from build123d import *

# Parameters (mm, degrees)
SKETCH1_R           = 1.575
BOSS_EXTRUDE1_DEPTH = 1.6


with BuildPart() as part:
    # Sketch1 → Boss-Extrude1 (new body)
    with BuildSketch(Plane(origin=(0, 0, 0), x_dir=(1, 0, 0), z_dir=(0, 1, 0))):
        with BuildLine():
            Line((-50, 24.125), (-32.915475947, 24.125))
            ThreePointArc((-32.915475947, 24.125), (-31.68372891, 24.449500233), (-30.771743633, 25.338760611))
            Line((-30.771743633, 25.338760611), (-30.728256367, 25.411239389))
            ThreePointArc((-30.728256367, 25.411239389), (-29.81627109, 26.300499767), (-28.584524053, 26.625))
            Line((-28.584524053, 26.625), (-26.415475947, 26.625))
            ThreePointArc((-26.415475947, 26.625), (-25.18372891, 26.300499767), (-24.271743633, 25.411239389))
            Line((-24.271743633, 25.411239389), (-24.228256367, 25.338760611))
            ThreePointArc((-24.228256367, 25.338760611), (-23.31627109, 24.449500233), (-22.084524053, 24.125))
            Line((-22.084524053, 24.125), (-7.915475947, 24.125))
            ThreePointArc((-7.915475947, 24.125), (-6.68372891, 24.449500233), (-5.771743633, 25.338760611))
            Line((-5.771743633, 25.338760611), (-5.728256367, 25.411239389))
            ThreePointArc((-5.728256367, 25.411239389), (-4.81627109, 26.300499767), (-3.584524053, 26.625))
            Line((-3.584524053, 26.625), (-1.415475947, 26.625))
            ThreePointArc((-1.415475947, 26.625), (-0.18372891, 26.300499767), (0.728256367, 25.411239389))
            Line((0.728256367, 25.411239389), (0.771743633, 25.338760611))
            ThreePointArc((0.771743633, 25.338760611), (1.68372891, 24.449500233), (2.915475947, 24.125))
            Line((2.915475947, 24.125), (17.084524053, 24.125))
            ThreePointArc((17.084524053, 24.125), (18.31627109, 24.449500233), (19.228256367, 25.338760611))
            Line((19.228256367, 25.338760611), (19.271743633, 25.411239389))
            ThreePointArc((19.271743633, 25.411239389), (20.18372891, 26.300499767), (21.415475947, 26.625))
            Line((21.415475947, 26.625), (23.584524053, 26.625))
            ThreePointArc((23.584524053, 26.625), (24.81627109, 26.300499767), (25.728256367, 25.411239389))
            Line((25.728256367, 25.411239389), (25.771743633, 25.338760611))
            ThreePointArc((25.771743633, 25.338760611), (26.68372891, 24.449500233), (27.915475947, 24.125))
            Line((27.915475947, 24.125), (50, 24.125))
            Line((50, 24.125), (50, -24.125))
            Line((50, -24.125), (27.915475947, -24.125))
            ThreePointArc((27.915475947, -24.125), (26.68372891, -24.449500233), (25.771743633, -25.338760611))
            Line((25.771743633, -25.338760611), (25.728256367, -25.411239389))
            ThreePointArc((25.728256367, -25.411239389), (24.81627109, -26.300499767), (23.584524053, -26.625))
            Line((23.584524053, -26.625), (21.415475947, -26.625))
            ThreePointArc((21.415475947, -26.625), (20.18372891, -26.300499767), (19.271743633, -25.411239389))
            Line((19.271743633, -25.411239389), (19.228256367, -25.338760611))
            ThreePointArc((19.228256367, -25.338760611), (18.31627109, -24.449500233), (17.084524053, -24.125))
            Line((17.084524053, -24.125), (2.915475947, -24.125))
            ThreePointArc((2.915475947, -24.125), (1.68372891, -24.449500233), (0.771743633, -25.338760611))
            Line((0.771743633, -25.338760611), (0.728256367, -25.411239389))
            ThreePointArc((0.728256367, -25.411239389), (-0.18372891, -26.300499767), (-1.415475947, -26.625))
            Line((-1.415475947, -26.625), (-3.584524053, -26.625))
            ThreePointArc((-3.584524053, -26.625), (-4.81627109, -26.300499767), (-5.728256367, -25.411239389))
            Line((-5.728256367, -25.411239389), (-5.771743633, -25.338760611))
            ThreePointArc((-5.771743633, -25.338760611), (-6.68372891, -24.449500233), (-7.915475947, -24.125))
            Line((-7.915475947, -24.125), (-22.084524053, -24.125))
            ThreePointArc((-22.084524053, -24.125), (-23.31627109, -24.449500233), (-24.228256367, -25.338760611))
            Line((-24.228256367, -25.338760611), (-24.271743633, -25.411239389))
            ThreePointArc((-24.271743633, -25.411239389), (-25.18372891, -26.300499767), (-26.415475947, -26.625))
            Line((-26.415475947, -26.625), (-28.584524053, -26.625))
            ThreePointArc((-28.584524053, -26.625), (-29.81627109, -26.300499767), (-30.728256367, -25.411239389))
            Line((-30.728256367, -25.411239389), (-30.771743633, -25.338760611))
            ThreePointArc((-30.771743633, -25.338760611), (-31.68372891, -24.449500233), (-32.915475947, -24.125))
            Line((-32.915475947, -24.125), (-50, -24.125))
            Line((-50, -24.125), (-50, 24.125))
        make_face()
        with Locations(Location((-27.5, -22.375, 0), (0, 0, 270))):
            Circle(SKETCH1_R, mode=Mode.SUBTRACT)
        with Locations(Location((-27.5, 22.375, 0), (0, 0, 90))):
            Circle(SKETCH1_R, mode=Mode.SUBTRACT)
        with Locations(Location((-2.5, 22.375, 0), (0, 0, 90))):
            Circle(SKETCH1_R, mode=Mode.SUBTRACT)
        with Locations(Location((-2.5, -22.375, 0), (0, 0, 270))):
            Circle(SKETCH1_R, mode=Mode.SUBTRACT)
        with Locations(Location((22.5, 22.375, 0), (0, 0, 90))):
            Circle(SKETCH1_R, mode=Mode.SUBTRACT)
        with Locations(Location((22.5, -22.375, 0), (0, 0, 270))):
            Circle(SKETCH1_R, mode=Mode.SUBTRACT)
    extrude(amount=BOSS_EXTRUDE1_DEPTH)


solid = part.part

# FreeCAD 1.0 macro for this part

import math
import FreeCAD as App
import Part
import Sketcher

V = App.Vector

doc = App.newDocument("Part")
body = doc.addObject("PartDesign::Body", "Body")

# Sketch on XZ plane
sketch1 = body.newObject("Sketcher::SketchObject", "Sketch")
sketch1.AttachmentSupport = (doc.getObject("XZ_Plane"), [""])
sketch1.MapMode = "FlatFace"
sketch1.addGeometry([
    Part.LineSegment(V(-32.92, -24.12, 0), V(-50, -24.12, 0)),  # 0
    Part.LineSegment(V(-50, -24.12, 0), V(-50, 24.12, 0)),  # 1
    Part.LineSegment(V(-50, 24.12, 0), V(-32.92, 24.12, 0)),  # 2
    Part.ArcOfCircle(Part.Circle(V(-32.92, 26.63, 0), V(0, 0, 1), 2.5), math.radians(-90), math.radians(-31)),  # 3
    Part.LineSegment(V(-30.77, 25.34, 0), V(-30.73, 25.41, 0)),  # 4
    Part.ArcOfCircle(Part.Circle(V(-28.58, 24.12, 0), V(0, 0, 1), 2.5), math.radians(90), math.radians(149)),  # 5
    Part.LineSegment(V(-28.58, 26.62, 0), V(-26.42, 26.62, 0)),  # 6
    Part.ArcOfCircle(Part.Circle(V(-26.42, 24.12, 0), V(0, 0, 1), 2.5), math.radians(31), math.radians(90)),  # 7
    Part.LineSegment(V(-24.27, 25.41, 0), V(-24.23, 25.34, 0)),  # 8
    Part.ArcOfCircle(Part.Circle(V(-22.08, 26.63, 0), V(0, 0, 1), 2.5), math.radians(-149), math.radians(-90)),  # 9
    Part.LineSegment(V(-22.08, 24.12, 0), V(-7.92, 24.12, 0)),  # 10
    Part.ArcOfCircle(Part.Circle(V(-7.92, 26.63, 0), V(0, 0, 1), 2.5), math.radians(-90), math.radians(-31)),  # 11
    Part.LineSegment(V(-5.77, 25.34, 0), V(-5.73, 25.41, 0)),  # 12
    Part.ArcOfCircle(Part.Circle(V(-3.58, 24.12, 0), V(0, 0, 1), 2.5), math.radians(90), math.radians(149)),  # 13
    Part.LineSegment(V(-3.58, 26.62, 0), V(-1.42, 26.62, 0)),  # 14
    Part.ArcOfCircle(Part.Circle(V(-1.42, 24.12, 0), V(0, 0, 1), 2.5), math.radians(31), math.radians(90)),  # 15
    Part.LineSegment(V(0.73, 25.41, 0), V(0.77, 25.34, 0)),  # 16
    Part.ArcOfCircle(Part.Circle(V(2.92, 26.63, 0), V(0, 0, 1), 2.5), math.radians(-149), math.radians(-90)),  # 17
    Part.LineSegment(V(2.92, 24.12, 0), V(17.08, 24.12, 0)),  # 18
    Part.ArcOfCircle(Part.Circle(V(17.08, 26.63, 0), V(0, 0, 1), 2.5), math.radians(-90), math.radians(-31)),  # 19
    Part.LineSegment(V(19.23, 25.34, 0), V(19.27, 25.41, 0)),  # 20
    Part.ArcOfCircle(Part.Circle(V(21.42, 24.12, 0), V(0, 0, 1), 2.5), math.radians(90), math.radians(149)),  # 21
    Part.LineSegment(V(21.42, 26.62, 0), V(23.58, 26.62, 0)),  # 22
    Part.ArcOfCircle(Part.Circle(V(23.58, 24.12, 0), V(0, 0, 1), 2.5), math.radians(31), math.radians(90)),  # 23
    Part.LineSegment(V(25.73, 25.41, 0), V(25.77, 25.34, 0)),  # 24
    Part.ArcOfCircle(Part.Circle(V(27.92, 26.63, 0), V(0, 0, 1), 2.5), math.radians(-149), math.radians(-90)),  # 25
    Part.LineSegment(V(27.92, 24.12, 0), V(50, 24.12, 0)),  # 26
    Part.LineSegment(V(50, 24.12, 0), V(50, -24.12, 0)),  # 27
    Part.LineSegment(V(50, -24.12, 0), V(27.92, -24.12, 0)),  # 28
    Part.ArcOfCircle(Part.Circle(V(27.92, -26.63, 0), V(0, 0, 1), 2.5), math.radians(90), math.radians(149)),  # 29
    Part.LineSegment(V(25.77, -25.34, 0), V(25.73, -25.41, 0)),  # 30
    Part.ArcOfCircle(Part.Circle(V(23.58, -24.12, 0), V(0, 0, 1), 2.5), math.radians(-90), math.radians(-31)),  # 31
    Part.LineSegment(V(23.58, -26.62, 0), V(21.42, -26.62, 0)),  # 32
    Part.ArcOfCircle(Part.Circle(V(21.42, -24.12, 0), V(0, 0, 1), 2.5), math.radians(-149), math.radians(-90)),  # 33
    Part.LineSegment(V(19.27, -25.41, 0), V(19.23, -25.34, 0)),  # 34
    Part.ArcOfCircle(Part.Circle(V(17.08, -26.63, 0), V(0, 0, 1), 2.5), math.radians(31), math.radians(90)),  # 35
    Part.LineSegment(V(17.08, -24.12, 0), V(2.92, -24.12, 0)),  # 36
    Part.ArcOfCircle(Part.Circle(V(2.92, -26.63, 0), V(0, 0, 1), 2.5), math.radians(90), math.radians(149)),  # 37
    Part.LineSegment(V(0.77, -25.34, 0), V(0.73, -25.41, 0)),  # 38
    Part.ArcOfCircle(Part.Circle(V(-1.42, -24.12, 0), V(0, 0, 1), 2.5), math.radians(-90), math.radians(-31)),  # 39
    Part.LineSegment(V(-1.42, -26.62, 0), V(-3.58, -26.62, 0)),  # 40
    Part.ArcOfCircle(Part.Circle(V(-3.58, -24.12, 0), V(0, 0, 1), 2.5), math.radians(-149), math.radians(-90)),  # 41
    Part.LineSegment(V(-5.73, -25.41, 0), V(-5.77, -25.34, 0)),  # 42
    Part.ArcOfCircle(Part.Circle(V(-7.92, -26.63, 0), V(0, 0, 1), 2.5), math.radians(31), math.radians(90)),  # 43
    Part.LineSegment(V(-7.92, -24.12, 0), V(-22.08, -24.12, 0)),  # 44
    Part.ArcOfCircle(Part.Circle(V(-22.08, -26.63, 0), V(0, 0, 1), 2.5), math.radians(90), math.radians(149)),  # 45
    Part.LineSegment(V(-24.23, -25.34, 0), V(-24.27, -25.41, 0)),  # 46
    Part.ArcOfCircle(Part.Circle(V(-26.42, -24.12, 0), V(0, 0, 1), 2.5), math.radians(-90), math.radians(-31)),  # 47
    Part.LineSegment(V(-26.42, -26.62, 0), V(-28.58, -26.62, 0)),  # 48
    Part.ArcOfCircle(Part.Circle(V(-28.58, -24.12, 0), V(0, 0, 1), 2.5), math.radians(-149), math.radians(-90)),  # 49
    Part.LineSegment(V(-30.73, -25.41, 0), V(-30.77, -25.34, 0)),  # 50
    Part.ArcOfCircle(Part.Circle(V(-32.92, -26.63, 0), V(0, 0, 1), 2.5), math.radians(31), math.radians(90)),  # 51
    Part.Circle(V(22.5, 22.38, 0), V(0, 0, 1), 1.57),  # 52
    Part.Circle(V(-2.5, 22.38, 0), V(0, 0, 1), 1.57),  # 53
    Part.Circle(V(-27.5, 22.38, 0), V(0, 0, 1), 1.57),  # 54
    Part.Circle(V(22.5, -22.38, 0), V(0, 0, 1), 1.57),  # 55
    Part.Circle(V(-2.5, -22.38, 0), V(0, 0, 1), 1.57),  # 56
    Part.Circle(V(-27.5, -22.38, 0), V(0, 0, 1), 1.57),  # 57
], False)
sketch1.addConstraint([
    Sketcher.Constraint("Coincident", 0, 2, 1, 1),
    Sketcher.Constraint("Coincident", 1, 2, 2, 1),
    Sketcher.Constraint("Tangent", 2, 2, 3, 1),
    Sketcher.Constraint("Tangent", 3, 2, 4, 1),
    Sketcher.Constraint("Tangent", 4, 2, 5, 2),
    Sketcher.Constraint("Tangent", 5, 1, 6, 1),
    Sketcher.Constraint("Tangent", 6, 2, 7, 2),
    Sketcher.Constraint("Tangent", 7, 1, 8, 1),
    Sketcher.Constraint("Tangent", 8, 2, 9, 1),
    Sketcher.Constraint("Tangent", 9, 2, 10, 1),
    Sketcher.Constraint("Tangent", 10, 2, 11, 1),
    Sketcher.Constraint("Tangent", 11, 2, 12, 1),
    Sketcher.Constraint("Tangent", 12, 2, 13, 2),
    Sketcher.Constraint("Tangent", 13, 1, 14, 1),
    Sketcher.Constraint("Tangent", 14, 2, 15, 2),
    Sketcher.Constraint("Tangent", 15, 1, 16, 1),
    Sketcher.Constraint("Tangent", 16, 2, 17, 1),
    Sketcher.Constraint("Tangent", 17, 2, 18, 1),
    Sketcher.Constraint("Tangent", 18, 2, 19, 1),
    Sketcher.Constraint("Tangent", 19, 2, 20, 1),
    Sketcher.Constraint("Tangent", 20, 2, 21, 2),
    Sketcher.Constraint("Tangent", 21, 1, 22, 1),
    Sketcher.Constraint("Tangent", 22, 2, 23, 2),
    Sketcher.Constraint("Tangent", 23, 1, 24, 1),
    Sketcher.Constraint("Tangent", 24, 2, 25, 1),
    Sketcher.Constraint("Tangent", 25, 2, 26, 1),
    Sketcher.Constraint("Coincident", 26, 2, 27, 1),
    Sketcher.Constraint("Coincident", 27, 2, 28, 1),
    Sketcher.Constraint("Tangent", 28, 2, 29, 1),
    Sketcher.Constraint("Tangent", 29, 2, 30, 1),
    Sketcher.Constraint("Tangent", 30, 2, 31, 2),
    Sketcher.Constraint("Tangent", 31, 1, 32, 1),
    Sketcher.Constraint("Tangent", 32, 2, 33, 2),
    Sketcher.Constraint("Tangent", 33, 1, 34, 1),
    Sketcher.Constraint("Tangent", 34, 2, 35, 1),
    Sketcher.Constraint("Tangent", 35, 2, 36, 1),
    Sketcher.Constraint("Tangent", 36, 2, 37, 1),
    Sketcher.Constraint("Tangent", 37, 2, 38, 1),
    Sketcher.Constraint("Tangent", 38, 2, 39, 2),
    Sketcher.Constraint("Tangent", 39, 1, 40, 1),
    Sketcher.Constraint("Tangent", 40, 2, 41, 2),
    Sketcher.Constraint("Tangent", 41, 1, 42, 1),
    Sketcher.Constraint("Tangent", 42, 2, 43, 1),
    Sketcher.Constraint("Tangent", 43, 2, 44, 1),
    Sketcher.Constraint("Tangent", 44, 2, 45, 1),
    Sketcher.Constraint("Tangent", 45, 2, 46, 1),
    Sketcher.Constraint("Tangent", 46, 2, 47, 2),
    Sketcher.Constraint("Tangent", 47, 1, 48, 1),
    Sketcher.Constraint("Tangent", 48, 2, 49, 2),
    Sketcher.Constraint("Tangent", 49, 1, 50, 1),
    Sketcher.Constraint("Tangent", 50, 2, 51, 1),
    Sketcher.Constraint("Tangent", 51, 2, 0, 1),
    Sketcher.Constraint("Horizontal", 0),
    Sketcher.Constraint("Vertical", 1),
    Sketcher.Constraint("Horizontal", 2),
    Sketcher.Constraint("Horizontal", 6),
    Sketcher.Constraint("Horizontal", 10),
    Sketcher.Constraint("Horizontal", 14),
    Sketcher.Constraint("Horizontal", 18),
    Sketcher.Constraint("Horizontal", 22),
    Sketcher.Constraint("Horizontal", 26),
    Sketcher.Constraint("Vertical", 27),
    Sketcher.Constraint("Horizontal", 28),
    Sketcher.Constraint("Horizontal", 32),
    Sketcher.Constraint("Horizontal", 36),
    Sketcher.Constraint("Horizontal", 40),
    Sketcher.Constraint("Horizontal", 44),
    Sketcher.Constraint("Horizontal", 48),
    Sketcher.Constraint("Equal", 3, 5),
    Sketcher.Constraint("Equal", 5, 7),
    Sketcher.Constraint("Equal", 7, 9),
    Sketcher.Constraint("Equal", 9, 11),
    Sketcher.Constraint("Equal", 11, 13),
    Sketcher.Constraint("Equal", 13, 15),
    Sketcher.Constraint("Equal", 15, 17),
    Sketcher.Constraint("Equal", 17, 19),
    Sketcher.Constraint("Equal", 19, 21),
    Sketcher.Constraint("Equal", 21, 23),
    Sketcher.Constraint("Equal", 23, 25),
    Sketcher.Constraint("Equal", 25, 29),
    Sketcher.Constraint("Equal", 29, 31),
    Sketcher.Constraint("Equal", 31, 33),
    Sketcher.Constraint("Equal", 33, 35),
    Sketcher.Constraint("Equal", 35, 37),
    Sketcher.Constraint("Equal", 37, 39),
    Sketcher.Constraint("Equal", 39, 41),
    Sketcher.Constraint("Equal", 41, 43),
    Sketcher.Constraint("Equal", 43, 45),
    Sketcher.Constraint("Equal", 45, 47),
    Sketcher.Constraint("Equal", 47, 49),
    Sketcher.Constraint("Equal", 49, 51),
    Sketcher.Constraint("Equal", 52, 53),
    Sketcher.Constraint("Equal", 53, 54),
    Sketcher.Constraint("Equal", 54, 55),
    Sketcher.Constraint("Equal", 55, 56),
    Sketcher.Constraint("Equal", 56, 57),
    Sketcher.Constraint("Symmetric", 0, 2, 26, 2, -1, 1),
    Sketcher.Constraint("Symmetric", 25, 3, 29, 3, -1),
    Sketcher.Constraint("Symmetric", 23, 3, 31, 3, -1),
    Sketcher.Constraint("Symmetric", 19, 3, 35, 3, -1),
    Sketcher.Constraint("Symmetric", 15, 3, 39, 3, -1),
    Sketcher.Constraint("Symmetric", 11, 3, 43, 3, -1),
    Sketcher.Constraint("Symmetric", 7, 3, 47, 3, -1),
    Sketcher.Constraint("Symmetric", 3, 3, 51, 3, -1),
    Sketcher.Constraint("Symmetric", 52, 3, 55, 3, -1),
    Sketcher.Constraint("Symmetric", 53, 3, 56, 3, -1),
    Sketcher.Constraint("Symmetric", 54, 3, 57, 3, -1),
    Sketcher.Constraint("Parallel", 4, 12),
    Sketcher.Constraint("Parallel", 8, 16),
    Sketcher.Constraint("Parallel", 12, 20),
    Sketcher.Constraint("Parallel", 16, 24),
    Sketcher.Constraint("Parallel", 20, 30),
    Sketcher.Constraint("Parallel", 24, 34),
    Sketcher.Constraint("Parallel", 30, 38),
    Sketcher.Constraint("Parallel", 34, 42),
    Sketcher.Constraint("Parallel", 38, 46),
    Sketcher.Constraint("Parallel", 42, 50),
    Sketcher.Constraint("Horizontal", 3, 3, 9, 3),
    Sketcher.Constraint("Horizontal", 7, 3, 13, 3),
    Sketcher.Constraint("Horizontal", 11, 3, 17, 3),
    Sketcher.Constraint("Horizontal", 15, 3, 21, 3),
    Sketcher.Constraint("Horizontal", 52, 3, 53, 3),
    Sketcher.Constraint("Horizontal", 53, 3, 54, 3),
    Sketcher.Constraint("Horizontal", 49, 3, 0, 2),
    Sketcher.Constraint("Equal", 6, 14),
    Sketcher.Constraint("Equal", 10, 18),
    Sketcher.Constraint("Equal", 14, 22),
    Sketcher.Constraint("Radius", 3, 2.5),
    Sketcher.Constraint("Diameter", 52, 3.15),
    Sketcher.Constraint("DistanceX", 0, 2, -1, 1, 50.0),
    Sketcher.Constraint("DistanceY", 1, 1, 1, 2, 48.25),
    Sketcher.Constraint("DistanceX", -1, 1, 52, 3, 22.5),
    Sketcher.Constraint("DistanceX", 53, 3, -1, 1, 2.5),
    Sketcher.Constraint("DistanceX", 54, 3, -1, 1, 27.5),
    Sketcher.Constraint("DistanceY", -1, 1, 52, 3, 22.375),
    Sketcher.Constraint("DistanceX", 6, 1, 6, 2, 2.169048),
    Sketcher.Constraint("DistanceX", 10, 1, 10, 2, 14.169048),
    Sketcher.Constraint("DistanceX", 0, 2, 0, 1, 17.084524),
    Sketcher.Constraint("DistanceX", 26, 1, 26, 2, 22.084524),
])
pad1 = body.newObject("PartDesign::Pad", "Pad")
pad1.Profile = sketch1
pad1.Length = 1.6
pad1.Reversed = True

doc.recompute()
